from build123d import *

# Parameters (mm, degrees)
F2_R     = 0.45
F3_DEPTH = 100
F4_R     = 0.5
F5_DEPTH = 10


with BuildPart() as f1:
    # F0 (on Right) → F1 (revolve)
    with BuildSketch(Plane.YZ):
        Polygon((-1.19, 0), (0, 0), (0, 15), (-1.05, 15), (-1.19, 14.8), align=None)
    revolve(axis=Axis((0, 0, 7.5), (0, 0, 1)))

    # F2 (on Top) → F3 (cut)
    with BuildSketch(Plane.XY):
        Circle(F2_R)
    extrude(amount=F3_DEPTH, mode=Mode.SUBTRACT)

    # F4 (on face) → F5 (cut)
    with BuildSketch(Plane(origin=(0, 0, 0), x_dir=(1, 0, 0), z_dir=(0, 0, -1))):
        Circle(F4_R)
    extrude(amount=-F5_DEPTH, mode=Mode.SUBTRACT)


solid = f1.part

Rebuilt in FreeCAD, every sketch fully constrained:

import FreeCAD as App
import Part
import Sketcher

V = App.Vector


def add_polygon(sketch, points):
    """Adds a closed chain of lines whose ends are joined by coincident constraints."""
    first, n = sketch.GeometryCount, len(points)
    for a, b in zip(points, points[1:] + points[:1]):
        sketch.addGeometry(Part.LineSegment(App.Vector(*a, 0), App.Vector(*b, 0)), False)
    for i in range(n):
        sketch.addConstraint(Sketcher.Constraint("Coincident", first + i, 2, first + (i + 1) % n, 1))

doc = App.newDocument("Part")
body = doc.addObject("PartDesign::Body", "Body")

# Sketch on YZ plane
sketch1 = body.newObject("Sketcher::SketchObject", "Sketch")
sketch1.AttachmentSupport = (doc.getObject("YZ_Plane"), [""])
sketch1.MapMode = "FlatFace"
add_polygon(sketch1, [(-1.19, 0), (0, 0), (0, 15), (-1.05, 15), (-1.19, 14.8)])  # lines 0-4
sketch1.addConstraint([
    Sketcher.Constraint("Horizontal", 0),
    Sketcher.Constraint("Vertical", 1),
    Sketcher.Constraint("Horizontal", 2),
    Sketcher.Constraint("Vertical", 4),
    Sketcher.Constraint("Coincident", 0, 2, -1, 1),
    Sketcher.Constraint("DistanceY", 1, 1, 1, 2, 15.0),
    Sketcher.Constraint("DistanceY", 4, 2, 4, 1, 14.8),
    Sketcher.Constraint("DistanceX", 0, 1, 0, 2, 1.19),
    Sketcher.Constraint("DistanceX", 2, 2, 2, 1, 1.05),
])
revolution = body.newObject("PartDesign::Revolution", "Revolution")
revolution.Profile = sketch1
revolution.ReferenceAxis = (sketch1, ["V_Axis"])
revolution.Angle = 360

# Sketch on XY plane
sketch2 = body.newObject("Sketcher::SketchObject", "Sketch001")
sketch2.AttachmentSupport = (doc.getObject("XY_Plane"), [""])
sketch2.MapMode = "FlatFace"
sketch2.addGeometry(Part.Circle(V(0, 0, 0), V(0, 0, 1), 0.45), False)
sketch2.addConstraint([
    Sketcher.Constraint("Coincident", 0, 3, -1, 1),
    Sketcher.Constraint("Diameter", 0, 0.9),
])
pocket1 = body.newObject("PartDesign::Pocket", "Pocket")
pocket1.Profile = sketch2
pocket1.Length = 100
pocket1.Reversed = True

# Sketch on XY plane
sketch3 = body.newObject("Sketcher::SketchObject", "Sketch002")
sketch3.AttachmentSupport = (doc.getObject("XY_Plane"), [""])
sketch3.MapMode = "FlatFace"
sketch3.addGeometry(Part.Circle(V(0, 0, 0), V(0, 0, 1), 0.5), False)
sketch3.addConstraint([
    Sketcher.Constraint("Coincident", 0, 3, -1, 1),
    Sketcher.Constraint("Diameter", 0, 1.0),
])
pocket2 = body.newObject("PartDesign::Pocket", "Pocket001")
pocket2.Profile = sketch3
pocket2.Length = 10
pocket2.Reversed = True

doc.recompute()
